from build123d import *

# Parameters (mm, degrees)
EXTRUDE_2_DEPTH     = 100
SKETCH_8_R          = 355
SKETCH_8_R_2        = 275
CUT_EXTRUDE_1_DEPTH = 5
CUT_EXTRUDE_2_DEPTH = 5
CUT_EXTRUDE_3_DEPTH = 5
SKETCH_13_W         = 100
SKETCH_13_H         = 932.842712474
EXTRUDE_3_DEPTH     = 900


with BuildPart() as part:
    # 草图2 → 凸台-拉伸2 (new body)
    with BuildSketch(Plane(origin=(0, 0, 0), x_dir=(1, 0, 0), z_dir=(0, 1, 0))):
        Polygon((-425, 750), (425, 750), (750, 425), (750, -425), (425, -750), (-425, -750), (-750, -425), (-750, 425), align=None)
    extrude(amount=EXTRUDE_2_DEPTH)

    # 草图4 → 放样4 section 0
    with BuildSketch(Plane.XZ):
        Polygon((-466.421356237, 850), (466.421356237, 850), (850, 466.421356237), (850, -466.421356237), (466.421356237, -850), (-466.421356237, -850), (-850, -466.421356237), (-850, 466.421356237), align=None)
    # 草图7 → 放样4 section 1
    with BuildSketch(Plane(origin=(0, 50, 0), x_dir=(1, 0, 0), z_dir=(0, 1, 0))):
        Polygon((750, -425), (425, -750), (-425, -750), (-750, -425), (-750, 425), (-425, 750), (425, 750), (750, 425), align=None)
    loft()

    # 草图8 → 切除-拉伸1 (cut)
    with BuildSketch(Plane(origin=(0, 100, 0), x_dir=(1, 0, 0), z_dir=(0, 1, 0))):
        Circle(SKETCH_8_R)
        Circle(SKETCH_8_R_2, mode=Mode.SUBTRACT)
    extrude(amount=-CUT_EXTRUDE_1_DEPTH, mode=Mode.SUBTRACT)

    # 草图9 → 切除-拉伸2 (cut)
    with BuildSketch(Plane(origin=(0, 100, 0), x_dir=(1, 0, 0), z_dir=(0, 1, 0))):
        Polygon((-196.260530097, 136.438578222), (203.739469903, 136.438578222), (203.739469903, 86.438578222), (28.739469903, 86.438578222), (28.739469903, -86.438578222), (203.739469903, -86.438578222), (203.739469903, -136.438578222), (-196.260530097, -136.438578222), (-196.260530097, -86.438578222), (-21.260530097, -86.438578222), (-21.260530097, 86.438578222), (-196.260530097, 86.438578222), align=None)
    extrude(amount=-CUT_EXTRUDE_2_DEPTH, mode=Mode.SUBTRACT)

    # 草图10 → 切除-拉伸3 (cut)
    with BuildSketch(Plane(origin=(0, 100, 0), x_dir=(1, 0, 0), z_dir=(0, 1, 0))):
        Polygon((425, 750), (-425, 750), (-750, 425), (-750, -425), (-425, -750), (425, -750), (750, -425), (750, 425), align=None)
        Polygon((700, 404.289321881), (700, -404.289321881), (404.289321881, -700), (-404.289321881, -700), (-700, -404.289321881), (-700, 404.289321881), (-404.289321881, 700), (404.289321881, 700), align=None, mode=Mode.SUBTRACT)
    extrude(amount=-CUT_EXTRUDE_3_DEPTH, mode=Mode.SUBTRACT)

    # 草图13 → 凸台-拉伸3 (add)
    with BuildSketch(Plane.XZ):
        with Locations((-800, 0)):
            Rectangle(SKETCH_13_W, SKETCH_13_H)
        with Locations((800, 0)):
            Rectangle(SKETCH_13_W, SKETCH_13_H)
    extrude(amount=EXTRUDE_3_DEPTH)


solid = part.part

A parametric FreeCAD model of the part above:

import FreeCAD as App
import Part
import Sketcher

doc = App.newDocument("Part")
body = doc.addObject("PartDesign::Body", "Body")

sketch1 = body.newObject("Sketcher::SketchObject", "Sketch")
sketch1.AttachmentSupport = (doc.getObject("XZ_Plane"), [""])
sketch1.MapMode = "FlatFace"
sketch1.addGeometry([
    Part.LineSegment(App.Vector(425, -750, 0), App.Vector(-425, -750, 0)),
    Part.LineSegment(App.Vector(-425, -750, 0), App.Vector(-750, -425, 0)),
    Part.LineSegment(App.Vector(-750, -425, 0), App.Vector(-750, 425, 0)),
    Part.LineSegment(App.Vector(-750, 425, 0), App.Vector(-425, 750, 0)),
    Part.LineSegment(App.Vector(-425, 750, 0), App.Vector(425, 750, 0)),
    Part.LineSegment(App.Vector(425, 750, 0), App.Vector(750, 425, 0)),
    Part.LineSegment(App.Vector(750, 425, 0), App.Vector(750, -425, 0)),
    Part.LineSegment(App.Vector(750, -425, 0), App.Vector(425, -750, 0)),
], False)
sketch1.addConstraint([
    Sketcher.Constraint("Coincident", 0, 2, 1, 1),
    Sketcher.Constraint("Coincident", 1, 2, 2, 1),
    Sketcher.Constraint("Coincident", 2, 2, 3, 1),
    Sketcher.Constraint("Coincident", 3, 2, 4, 1),
    Sketcher.Constraint("Coincident", 4, 2, 5, 1),
    Sketcher.Constraint("Coincident", 5, 2, 6, 1),
    Sketcher.Constraint("Coincident", 6, 2, 7, 1),
    Sketcher.Constraint("Coincident", 7, 2, 0, 1),
    Sketcher.Constraint("Horizontal", 0),
    Sketcher.Constraint("Vertical", 2),
    Sketcher.Constraint("Horizontal", 4),
    Sketcher.Constraint("Vertical", 6),
    Sketcher.Constraint("Symmetric", 0, 2, 4, 2, -1, 1),
    Sketcher.Constraint("Symmetric", 1, 2, 5, 2, -1, 1),
    Sketcher.Constraint("Perpendicular", 1, 3),
    Sketcher.Constraint("Perpendicular", 5, 7),
    Sketcher.Constraint("Horizontal", 2, 2, 5, 2),
    Sketcher.Constraint("Horizontal", 1, 2, 6, 2),
    Sketcher.Constraint("Vertical", 0, 2, 3, 2),
    Sketcher.Constraint("Equal", 4, 2),
    Sketcher.Constraint("DistanceX", 0, 2, 0, 1, 850.0),
    Sketcher.Constraint("DistanceY", 0, 2, -1, 1, 750.0),
])
pad1 = body.newObject("PartDesign::Pad", "Pad")
pad1.Profile = sketch1
pad1.Length = 100
pad1.Reversed = True

sketch2 = body.newObject("Sketcher::SketchObject", "Sketch001")
sketch2.AttachmentSupport = (doc.getObject("XZ_Plane"), [""])
sketch2.MapMode = "FlatFace"
sketch2.addGeometry([
    Part.LineSegment(App.Vector(466.421356, 850, 0), App.Vector(-466.421356, 850, 0)),
    Part.LineSegment(App.Vector(-466.421356, 850, 0), App.Vector(-850, 466.421356, 0)),
    Part.LineSegment(App.Vector(-850, 466.421356, 0), App.Vector(-850, -466.421356, 0)),
    Part.LineSegment(App.Vector(-850, -466.421356, 0), App.Vector(-466.421356, -850, 0)),
    Part.LineSegment(App.Vector(-466.421356, -850, 0), App.Vector(466.421356, -850, 0)),
    Part.LineSegment(App.Vector(466.421356, -850, 0), App.Vector(850, -466.421356, 0)),
    Part.LineSegment(App.Vector(850, -466.421356, 0), App.Vector(850, 466.421356, 0)),
    Part.LineSegment(App.Vector(850, 466.421356, 0), App.Vector(466.421356, 850, 0)),
], False)
sketch2.addConstraint([
    Sketcher.Constraint("Coincident", 0, 2, 1, 1),
    Sketcher.Constraint("Coincident", 1, 2, 2, 1),
    Sketcher.Constraint("Coincident", 2, 2, 3, 1),
    Sketcher.Constraint("Coincident", 3, 2, 4, 1),
    Sketcher.Constraint("Coincident", 4, 2, 5, 1),
    Sketcher.Constraint("Coincident", 5, 2, 6, 1),
    Sketcher.Constraint("Coincident", 6, 2, 7, 1),
    Sketcher.Constraint("Coincident", 7, 2, 0, 1),
    Sketcher.Constraint("Horizontal", 0),
    Sketcher.Constraint("Vertical", 2),
    Sketcher.Constraint("Horizontal", 4),
    Sketcher.Constraint("Vertical", 6),
    Sketcher.Constraint("Symmetric", 0, 2, 4, 2, -1, 1),
    Sketcher.Constraint("Symmetric", 1, 2, 5, 2, -1, 1),
    Sketcher.Constraint("Perpendicular", 1, 3),
    Sketcher.Constraint("Perpendicular", 5, 7),
    Sketcher.Constraint("Horizontal", 2, 2, 5, 2),
    Sketcher.Constraint("Horizontal", 1, 2, 6, 2),
    Sketcher.Constraint("Vertical", 0, 2, 3, 2),
    Sketcher.Constraint("Equal", 4, 2),
    Sketcher.Constraint("DistanceY", -1, 1, 0, 2, 850.0),
    Sketcher.Constraint("Distance", 1, 542.46212),
])

sketch3 = body.newObject("Sketcher::SketchObject", "Sketch002")
sketch3.AttachmentSupport = (doc.getObject("XZ_Plane"), [""])
sketch3.MapMode = "FlatFace"
sketch3.AttachmentOffset = App.Placement(App.Vector(0, 0, -50), App.Rotation())
sketch3.addGeometry([
    Part.LineSegment(App.Vector(425, 750, 0), App.Vector(750, 425, 0)),
    Part.LineSegment(App.Vector(750, 425, 0), App.Vector(750, -425, 0)),
    Part.LineSegment(App.Vector(750, -425, 0), App.Vector(425, -750, 0)),
    Part.LineSegment(App.Vector(425, -750, 0), App.Vector(-425, -750, 0)),
    Part.LineSegment(App.Vector(-425, -750, 0), App.Vector(-750, -425, 0)),
    Part.LineSegment(App.Vector(-750, -425, 0), App.Vector(-750, 425, 0)),
    Part.LineSegment(App.Vector(-750, 425, 0), App.Vector(-425, 750, 0)),
    Part.LineSegment(App.Vector(-425, 750, 0), App.Vector(425, 750, 0)),
], False)
sketch3.addConstraint([
    Sketcher.Constraint("Coincident", 0, 2, 1, 1),
    Sketcher.Constraint("Coincident", 1, 2, 2, 1),
    Sketcher.Constraint("Coincident", 2, 2, 3, 1),
    Sketcher.Constraint("Coincident", 3, 2, 4, 1),
    Sketcher.Constraint("Coincident", 4, 2, 5, 1),
    Sketcher.Constraint("Coincident", 5, 2, 6, 1),
    Sketcher.Constraint("Coincident", 6, 2, 7, 1),
    Sketcher.Constraint("Coincident", 7, 2, 0, 1),
    Sketcher.Constraint("Vertical", 1),
    Sketcher.Constraint("Horizontal", 3),
    Sketcher.Constraint("Vertical", 5),
    Sketcher.Constraint("Horizontal", 7),
    Sketcher.Constraint("Symmetric", 0, 2, 4, 2, -1, 1),
    Sketcher.Constraint("Symmetric", 2, 2, 6, 2, -1, 1),
    Sketcher.Constraint("Perpendicular", 0, 2),
    Sketcher.Constraint("Perpendicular", 2, 4),
    Sketcher.Constraint("Perpendicular", 4, 6),
    Sketcher.Constraint("Horizontal", 1, 2, 4, 2),
    Sketcher.Constraint("Vertical", 3, 2, 6, 2),
    Sketcher.Constraint("Equal", 7, 1),
    Sketcher.Constraint("DistanceX", 3, 2, 3, 1, 850.0),
    Sketcher.Constraint("DistanceX", -1, 1, 0, 2, 750.0),
])

additiveloft = body.newObject("PartDesign::AdditiveLoft", "AdditiveLoft")
additiveloft.Profile = sketch2
additiveloft.Sections = [sketch3]

sketch4 = body.newObject("Sketcher::SketchObject", "Sketch003")
sketch4.AttachmentSupport = (doc.getObject("XZ_Plane"), [""])
sketch4.MapMode = "FlatFace"
sketch4.AttachmentOffset = App.Placement(App.Vector(0, 0, -100), App.Rotation())
sketch4.addGeometry([
    Part.Circle(App.Vector(0, 0, 0), App.Vector(0, 0, 1), 355),
    Part.Circle(App.Vector(0, 0, 0), App.Vector(0, 0, 1), 275),
], False)
sketch4.addConstraint([
    Sketcher.Constraint("Coincident", 0, 3, -1, 1),
    Sketcher.Constraint("Coincident", 1, 3, -1, 1),
    Sketcher.Constraint("Diameter", 0, 710.0),
    Sketcher.Constraint("Diameter", 1, 550.0),
])
pocket1 = body.newObject("PartDesign::Pocket", "Pocket")
pocket1.Profile = sketch4
pocket1.Length = 5
pocket1.Reversed = True

sketch5 = body.newObject("Sketcher::SketchObject", "Sketch004")
sketch5.AttachmentSupport = (doc.getObject("XZ_Plane"), [""])
sketch5.MapMode = "FlatFace"
sketch5.AttachmentOffset = App.Placement(App.Vector(0, 0, -100), App.Rotation())
sketch5.addGeometry([
    Part.LineSegment(App.Vector(203.73947, -136.438578, 0), App.Vector(-196.26053, -136.438578, 0)),
    Part.LineSegment(App.Vector(-196.26053, -136.438578, 0), App.Vector(-196.26053, -86.438578, 0)),
    Part.LineSegment(App.Vector(-196.26053, -86.438578, 0), App.Vector(-21.26053, -86.438578, 0)),
    Part.LineSegment(App.Vector(-21.26053, -86.438578, 0), App.Vector(-21.26053, 86.438578, 0)),
    Part.LineSegment(App.Vector(-21.26053, 86.438578, 0), App.Vector(-196.26053, 86.438578, 0)),
    Part.LineSegment(App.Vector(-196.26053, 86.438578, 0), App.Vector(-196.26053, 136.438578, 0)),
    Part.LineSegment(App.Vector(-196.26053, 136.438578, 0), App.Vector(203.73947, 136.438578, 0)),
    Part.LineSegment(App.Vector(203.73947, 136.438578, 0), App.Vector(203.73947, 86.438578, 0)),
    Part.LineSegment(App.Vector(203.73947, 86.438578, 0), App.Vector(28.73947, 86.438578, 0)),
    Part.LineSegment(App.Vector(28.73947, 86.438578, 0), App.Vector(28.73947, -86.438578, 0)),
    Part.LineSegment(App.Vector(28.73947, -86.438578, 0), App.Vector(203.73947, -86.438578, 0)),
    Part.LineSegment(App.Vector(203.73947, -86.438578, 0), App.Vector(203.73947, -136.438578, 0)),
], False)
sketch5.addConstraint([
    Sketcher.Constraint("Coincident", 0, 2, 1, 1),
    Sketcher.Constraint("Coincident", 1, 2, 2, 1),
    Sketcher.Constraint("Coincident", 2, 2, 3, 1),
    Sketcher.Constraint("Coincident", 3, 2, 4, 1),
    Sketcher.Constraint("Coincident", 4, 2, 5, 1),
    Sketcher.Constraint("Coincident", 5, 2, 6, 1),
    Sketcher.Constraint("Coincident", 6, 2, 7, 1),
    Sketcher.Constraint("Coincident", 7, 2, 8, 1),
    Sketcher.Constraint("Coincident", 8, 2, 9, 1),
    Sketcher.Constraint("Coincident", 9, 2, 10, 1),
    Sketcher.Constraint("Coincident", 10, 2, 11, 1),
    Sketcher.Constraint("Coincident", 11, 2, 0, 1),
    Sketcher.Constraint("Horizontal", 0),
    Sketcher.Constraint("Vertical", 1),
    Sketcher.Constraint("Horizontal", 2),
    Sketcher.Constraint("Vertical", 3),
    Sketcher.Constraint("Horizontal", 4),
    Sketcher.Constraint("Vertical", 5),
    Sketcher.Constraint("Horizontal", 6),
    Sketcher.Constraint("Vertical", 7),
    Sketcher.Constraint("Horizontal", 8),
    Sketcher.Constraint("Vertical", 9),
    Sketcher.Constraint("Horizontal", 10),
    Sketcher.Constraint("Vertical", 11),
    Sketcher.Constraint("Symmetric", 1, 2, 4, 2, -1),
    Sketcher.Constraint("Symmetric", 7, 2, 10, 2, -1),
    Sketcher.Constraint("Horizontal", 4, 2, 7, 2),
    Sketcher.Constraint("Equal", 4, 8),
    Sketcher.Constraint("Equal", 1, 5),
    Sketcher.Constraint("DistanceX", 0, 2, 0, 1, 400.0),
    Sketcher.Constraint("DistanceX", 2, 1, 2, 2, 175.0),
    Sketcher.Constraint("DistanceY", 1, 1, 1, 2, 50.0),
    Sketcher.Constraint("DistanceY", 3, 1, 3, 2, 172.877156),
    Sketcher.Constraint("DistanceX", 0, 2, -1, 1, 196.26053),
])
pocket2 = body.newObject("PartDesign::Pocket", "Pocket001")
pocket2.Profile = sketch5
pocket2.Length = 5
pocket2.Reversed = True

sketch6 = body.newObject("Sketcher::SketchObject", "Sketch005")
sketch6.AttachmentSupport = (doc.getObject("XZ_Plane"), [""])
sketch6.MapMode = "FlatFace"
sketch6.AttachmentOffset = App.Placement(App.Vector(0, 0, -100), App.Rotation())
sketch6.addGeometry([
    Part.LineSegment(App.Vector(425, -750, 0), App.Vector(-425, -750, 0)),
    Part.LineSegment(App.Vector(-425, -750, 0), App.Vector(-750, -425, 0)),
    Part.LineSegment(App.Vector(-750, -425, 0), App.Vector(-750, 425, 0)),
    Part.LineSegment(App.Vector(-750, 425, 0), App.Vector(-425, 750, 0)),
    Part.LineSegment(App.Vector(-425, 750, 0), App.Vector(425, 750, 0)),
    Part.LineSegment(App.Vector(425, 750, 0), App.Vector(750, 425, 0)),
    Part.LineSegment(App.Vector(750, 425, 0), App.Vector(750, -425, 0)),
    Part.LineSegment(App.Vector(750, -425, 0), App.Vector(425, -750, 0)),
    Part.LineSegment(App.Vector(404.289322, -700, 0), App.Vector(700, -404.289322, 0)),
    Part.LineSegment(App.Vector(700, -404.289322, 0), App.Vector(700, 404.289322, 0)),
    Part.LineSegment(App.Vector(700, 404.289322, 0), App.Vector(404.289322, 700, 0)),
    Part.LineSegment(App.Vector(404.289322, 700, 0), App.Vector(-404.289322, 700, 0)),
    Part.LineSegment(App.Vector(-404.289322, 700, 0), App.Vector(-700, 404.289322, 0)),
    Part.LineSegment(App.Vector(-700, 404.289322, 0), App.Vector(-700, -404.289322, 0)),
    Part.LineSegment(App.Vector(-700, -404.289322, 0), App.Vector(-404.289322, -700, 0)),
    Part.LineSegment(App.Vector(-404.289322, -700, 0), App.Vector(404.289322, -700, 0)),
], False)
sketch6.addConstraint([
    Sketcher.Constraint("Coincident", 0, 2, 1, 1),
    Sketcher.Constraint("Coincident", 1, 2, 2, 1),
    Sketcher.Constraint("Coincident", 2, 2, 3, 1),
    Sketcher.Constraint("Coincident", 3, 2, 4, 1),
    Sketcher.Constraint("Coincident", 4, 2, 5, 1),
    Sketcher.Constraint("Coincident", 5, 2, 6, 1),
    Sketcher.Constraint("Coincident", 6, 2, 7, 1),
    Sketcher.Constraint("Coincident", 7, 2, 0, 1),
    Sketcher.Constraint("Coincident", 8, 2, 9, 1),
    Sketcher.Constraint("Coincident", 9, 2, 10, 1),
    Sketcher.Constraint("Coincident", 10, 2, 11, 1),
    Sketcher.Constraint("Coincident", 11, 2, 12, 1),
    Sketcher.Constraint("Coincident", 12, 2, 13, 1),
    Sketcher.Constraint("Coincident", 13, 2, 14, 1),
    Sketcher.Constraint("Coincident", 14, 2, 15, 1),
    Sketcher.Constraint("Coincident", 15, 2, 8, 1),
    Sketcher.Constraint("Horizontal", 0),
    Sketcher.Constraint("Vertical", 2),
    Sketcher.Constraint("Horizontal", 4),
    Sketcher.Constraint("Vertical", 6),
    Sketcher.Constraint("Vertical", 9),
    Sketcher.Constraint("Horizontal", 11),
    Sketcher.Constraint("Vertical", 13),
    Sketcher.Constraint("Horizontal", 15),
    Sketcher.Constraint("Symmetric", 0, 2, 4, 2, -1, 1),
    Sketcher.Constraint("Symmetric", 1, 2, 5, 2, -1, 1),
    Sketcher.Constraint("Symmetric", 8, 2, 12, 2, -1, 1),
    Sketcher.Constraint("Symmetric", 10, 2, 14, 2, -1, 1),
    Sketcher.Constraint("Perpendicular", 1, 3),
    Sketcher.Constraint("Perpendicular", 5, 7),
    Sketcher.Constraint("Parallel", 7, 8),
    Sketcher.Constraint("Perpendicular", 8, 10),
    Sketcher.Constraint("Perpendicular", 10, 12),
    Sketcher.Constraint("Perpendicular", 12, 14),
    Sketcher.Constraint("Horizontal", 2, 2, 5, 2),
    Sketcher.Constraint("Horizontal", 1, 2, 6, 2),
    Sketcher.Constraint("Horizontal", 9, 2, 12, 2),
    Sketcher.Constraint("Vertical", 0, 2, 3, 2),
    Sketcher.Constraint("Equal", 4, 2),
    Sketcher.Constraint("Equal", 15, 9),
    Sketcher.Constraint("DistanceX", 0, 2, 0, 1, 850.0),
    Sketcher.Constraint("DistanceY", 0, 2, -1, 1, 750.0),
    Sketcher.Constraint("DistanceX", -1, 1, 8, 2, 700.0),
    Sketcher.Constraint("Distance", 8, 418.198052),
])
pocket3 = body.newObject("PartDesign::Pocket", "Pocket002")
pocket3.Profile = sketch6
pocket3.Length = 5
pocket3.Reversed = True

sketch7 = body.newObject("Sketcher::SketchObject", "Sketch006")
sketch7.AttachmentSupport = (doc.getObject("XZ_Plane"), [""])
sketch7.MapMode = "FlatFace"
sketch7.addGeometry([
    Part.LineSegment(App.Vector(-850, 466.421356, 0), App.Vector(-850, -466.421356, 0)),
    Part.LineSegment(App.Vector(-850, -466.421356, 0), App.Vector(-750, -466.421356, 0)),
    Part.LineSegment(App.Vector(-750, -466.421356, 0), App.Vector(-750, 466.421356, 0)),
    Part.LineSegment(App.Vector(-750, 466.421356, 0), App.Vector(-850, 466.421356, 0)),
    Part.LineSegment(App.Vector(750, 466.421356, 0), App.Vector(750, -466.421356, 0)),
    Part.LineSegment(App.Vector(750, -466.421356, 0), App.Vector(850, -466.421356, 0)),
    Part.LineSegment(App.Vector(850, -466.421356, 0), App.Vector(850, 466.421356, 0)),
    Part.LineSegment(App.Vector(850, 466.421356, 0), App.Vector(750, 466.421356, 0)),
], False)
sketch7.addConstraint([
    Sketcher.Constraint("Coincident", 0, 2, 1, 1),
    Sketcher.Constraint("Coincident", 1, 2, 2, 1),
    Sketcher.Constraint("Coincident", 2, 2, 3, 1),
    Sketcher.Constraint("Coincident", 3, 2, 0, 1),
    Sketcher.Constraint("Coincident", 4, 2, 5, 1),
    Sketcher.Constraint("Coincident", 5, 2, 6, 1),
    Sketcher.Constraint("Coincident", 6, 2, 7, 1),
    Sketcher.Constraint("Coincident", 7, 2, 4, 1),
    Sketcher.Constraint("Vertical", 0),
    Sketcher.Constraint("Horizontal", 1),
    Sketcher.Constraint("Vertical", 2),
    Sketcher.Constraint("Horizontal", 3),
    Sketcher.Constraint("Vertical", 4),
    Sketcher.Constraint("Horizontal", 5),
    Sketcher.Constraint("Vertical", 6),
    Sketcher.Constraint("Horizontal", 7),
    Sketcher.Constraint("Symmetric", 2, 2, 4, 2, -1, 1),
    Sketcher.Constraint("Symmetric", 0, 2, 6, 2, -1, 1),
    Sketcher.Constraint("Horizontal", 1, 2, 4, 2),
    Sketcher.Constraint("DistanceX", 1, 1, 1, 2, 100.0),
    Sketcher.Constraint("DistanceX", 0, 2, -1, 1, 850.0),
    Sketcher.Constraint("DistanceY", 0, 2, 0, 1, 932.842712),
])
pad2 = body.newObject("PartDesign::Pad", "Pad001")
pad2.Profile = sketch7
pad2.Length = 900

doc.recompute()
